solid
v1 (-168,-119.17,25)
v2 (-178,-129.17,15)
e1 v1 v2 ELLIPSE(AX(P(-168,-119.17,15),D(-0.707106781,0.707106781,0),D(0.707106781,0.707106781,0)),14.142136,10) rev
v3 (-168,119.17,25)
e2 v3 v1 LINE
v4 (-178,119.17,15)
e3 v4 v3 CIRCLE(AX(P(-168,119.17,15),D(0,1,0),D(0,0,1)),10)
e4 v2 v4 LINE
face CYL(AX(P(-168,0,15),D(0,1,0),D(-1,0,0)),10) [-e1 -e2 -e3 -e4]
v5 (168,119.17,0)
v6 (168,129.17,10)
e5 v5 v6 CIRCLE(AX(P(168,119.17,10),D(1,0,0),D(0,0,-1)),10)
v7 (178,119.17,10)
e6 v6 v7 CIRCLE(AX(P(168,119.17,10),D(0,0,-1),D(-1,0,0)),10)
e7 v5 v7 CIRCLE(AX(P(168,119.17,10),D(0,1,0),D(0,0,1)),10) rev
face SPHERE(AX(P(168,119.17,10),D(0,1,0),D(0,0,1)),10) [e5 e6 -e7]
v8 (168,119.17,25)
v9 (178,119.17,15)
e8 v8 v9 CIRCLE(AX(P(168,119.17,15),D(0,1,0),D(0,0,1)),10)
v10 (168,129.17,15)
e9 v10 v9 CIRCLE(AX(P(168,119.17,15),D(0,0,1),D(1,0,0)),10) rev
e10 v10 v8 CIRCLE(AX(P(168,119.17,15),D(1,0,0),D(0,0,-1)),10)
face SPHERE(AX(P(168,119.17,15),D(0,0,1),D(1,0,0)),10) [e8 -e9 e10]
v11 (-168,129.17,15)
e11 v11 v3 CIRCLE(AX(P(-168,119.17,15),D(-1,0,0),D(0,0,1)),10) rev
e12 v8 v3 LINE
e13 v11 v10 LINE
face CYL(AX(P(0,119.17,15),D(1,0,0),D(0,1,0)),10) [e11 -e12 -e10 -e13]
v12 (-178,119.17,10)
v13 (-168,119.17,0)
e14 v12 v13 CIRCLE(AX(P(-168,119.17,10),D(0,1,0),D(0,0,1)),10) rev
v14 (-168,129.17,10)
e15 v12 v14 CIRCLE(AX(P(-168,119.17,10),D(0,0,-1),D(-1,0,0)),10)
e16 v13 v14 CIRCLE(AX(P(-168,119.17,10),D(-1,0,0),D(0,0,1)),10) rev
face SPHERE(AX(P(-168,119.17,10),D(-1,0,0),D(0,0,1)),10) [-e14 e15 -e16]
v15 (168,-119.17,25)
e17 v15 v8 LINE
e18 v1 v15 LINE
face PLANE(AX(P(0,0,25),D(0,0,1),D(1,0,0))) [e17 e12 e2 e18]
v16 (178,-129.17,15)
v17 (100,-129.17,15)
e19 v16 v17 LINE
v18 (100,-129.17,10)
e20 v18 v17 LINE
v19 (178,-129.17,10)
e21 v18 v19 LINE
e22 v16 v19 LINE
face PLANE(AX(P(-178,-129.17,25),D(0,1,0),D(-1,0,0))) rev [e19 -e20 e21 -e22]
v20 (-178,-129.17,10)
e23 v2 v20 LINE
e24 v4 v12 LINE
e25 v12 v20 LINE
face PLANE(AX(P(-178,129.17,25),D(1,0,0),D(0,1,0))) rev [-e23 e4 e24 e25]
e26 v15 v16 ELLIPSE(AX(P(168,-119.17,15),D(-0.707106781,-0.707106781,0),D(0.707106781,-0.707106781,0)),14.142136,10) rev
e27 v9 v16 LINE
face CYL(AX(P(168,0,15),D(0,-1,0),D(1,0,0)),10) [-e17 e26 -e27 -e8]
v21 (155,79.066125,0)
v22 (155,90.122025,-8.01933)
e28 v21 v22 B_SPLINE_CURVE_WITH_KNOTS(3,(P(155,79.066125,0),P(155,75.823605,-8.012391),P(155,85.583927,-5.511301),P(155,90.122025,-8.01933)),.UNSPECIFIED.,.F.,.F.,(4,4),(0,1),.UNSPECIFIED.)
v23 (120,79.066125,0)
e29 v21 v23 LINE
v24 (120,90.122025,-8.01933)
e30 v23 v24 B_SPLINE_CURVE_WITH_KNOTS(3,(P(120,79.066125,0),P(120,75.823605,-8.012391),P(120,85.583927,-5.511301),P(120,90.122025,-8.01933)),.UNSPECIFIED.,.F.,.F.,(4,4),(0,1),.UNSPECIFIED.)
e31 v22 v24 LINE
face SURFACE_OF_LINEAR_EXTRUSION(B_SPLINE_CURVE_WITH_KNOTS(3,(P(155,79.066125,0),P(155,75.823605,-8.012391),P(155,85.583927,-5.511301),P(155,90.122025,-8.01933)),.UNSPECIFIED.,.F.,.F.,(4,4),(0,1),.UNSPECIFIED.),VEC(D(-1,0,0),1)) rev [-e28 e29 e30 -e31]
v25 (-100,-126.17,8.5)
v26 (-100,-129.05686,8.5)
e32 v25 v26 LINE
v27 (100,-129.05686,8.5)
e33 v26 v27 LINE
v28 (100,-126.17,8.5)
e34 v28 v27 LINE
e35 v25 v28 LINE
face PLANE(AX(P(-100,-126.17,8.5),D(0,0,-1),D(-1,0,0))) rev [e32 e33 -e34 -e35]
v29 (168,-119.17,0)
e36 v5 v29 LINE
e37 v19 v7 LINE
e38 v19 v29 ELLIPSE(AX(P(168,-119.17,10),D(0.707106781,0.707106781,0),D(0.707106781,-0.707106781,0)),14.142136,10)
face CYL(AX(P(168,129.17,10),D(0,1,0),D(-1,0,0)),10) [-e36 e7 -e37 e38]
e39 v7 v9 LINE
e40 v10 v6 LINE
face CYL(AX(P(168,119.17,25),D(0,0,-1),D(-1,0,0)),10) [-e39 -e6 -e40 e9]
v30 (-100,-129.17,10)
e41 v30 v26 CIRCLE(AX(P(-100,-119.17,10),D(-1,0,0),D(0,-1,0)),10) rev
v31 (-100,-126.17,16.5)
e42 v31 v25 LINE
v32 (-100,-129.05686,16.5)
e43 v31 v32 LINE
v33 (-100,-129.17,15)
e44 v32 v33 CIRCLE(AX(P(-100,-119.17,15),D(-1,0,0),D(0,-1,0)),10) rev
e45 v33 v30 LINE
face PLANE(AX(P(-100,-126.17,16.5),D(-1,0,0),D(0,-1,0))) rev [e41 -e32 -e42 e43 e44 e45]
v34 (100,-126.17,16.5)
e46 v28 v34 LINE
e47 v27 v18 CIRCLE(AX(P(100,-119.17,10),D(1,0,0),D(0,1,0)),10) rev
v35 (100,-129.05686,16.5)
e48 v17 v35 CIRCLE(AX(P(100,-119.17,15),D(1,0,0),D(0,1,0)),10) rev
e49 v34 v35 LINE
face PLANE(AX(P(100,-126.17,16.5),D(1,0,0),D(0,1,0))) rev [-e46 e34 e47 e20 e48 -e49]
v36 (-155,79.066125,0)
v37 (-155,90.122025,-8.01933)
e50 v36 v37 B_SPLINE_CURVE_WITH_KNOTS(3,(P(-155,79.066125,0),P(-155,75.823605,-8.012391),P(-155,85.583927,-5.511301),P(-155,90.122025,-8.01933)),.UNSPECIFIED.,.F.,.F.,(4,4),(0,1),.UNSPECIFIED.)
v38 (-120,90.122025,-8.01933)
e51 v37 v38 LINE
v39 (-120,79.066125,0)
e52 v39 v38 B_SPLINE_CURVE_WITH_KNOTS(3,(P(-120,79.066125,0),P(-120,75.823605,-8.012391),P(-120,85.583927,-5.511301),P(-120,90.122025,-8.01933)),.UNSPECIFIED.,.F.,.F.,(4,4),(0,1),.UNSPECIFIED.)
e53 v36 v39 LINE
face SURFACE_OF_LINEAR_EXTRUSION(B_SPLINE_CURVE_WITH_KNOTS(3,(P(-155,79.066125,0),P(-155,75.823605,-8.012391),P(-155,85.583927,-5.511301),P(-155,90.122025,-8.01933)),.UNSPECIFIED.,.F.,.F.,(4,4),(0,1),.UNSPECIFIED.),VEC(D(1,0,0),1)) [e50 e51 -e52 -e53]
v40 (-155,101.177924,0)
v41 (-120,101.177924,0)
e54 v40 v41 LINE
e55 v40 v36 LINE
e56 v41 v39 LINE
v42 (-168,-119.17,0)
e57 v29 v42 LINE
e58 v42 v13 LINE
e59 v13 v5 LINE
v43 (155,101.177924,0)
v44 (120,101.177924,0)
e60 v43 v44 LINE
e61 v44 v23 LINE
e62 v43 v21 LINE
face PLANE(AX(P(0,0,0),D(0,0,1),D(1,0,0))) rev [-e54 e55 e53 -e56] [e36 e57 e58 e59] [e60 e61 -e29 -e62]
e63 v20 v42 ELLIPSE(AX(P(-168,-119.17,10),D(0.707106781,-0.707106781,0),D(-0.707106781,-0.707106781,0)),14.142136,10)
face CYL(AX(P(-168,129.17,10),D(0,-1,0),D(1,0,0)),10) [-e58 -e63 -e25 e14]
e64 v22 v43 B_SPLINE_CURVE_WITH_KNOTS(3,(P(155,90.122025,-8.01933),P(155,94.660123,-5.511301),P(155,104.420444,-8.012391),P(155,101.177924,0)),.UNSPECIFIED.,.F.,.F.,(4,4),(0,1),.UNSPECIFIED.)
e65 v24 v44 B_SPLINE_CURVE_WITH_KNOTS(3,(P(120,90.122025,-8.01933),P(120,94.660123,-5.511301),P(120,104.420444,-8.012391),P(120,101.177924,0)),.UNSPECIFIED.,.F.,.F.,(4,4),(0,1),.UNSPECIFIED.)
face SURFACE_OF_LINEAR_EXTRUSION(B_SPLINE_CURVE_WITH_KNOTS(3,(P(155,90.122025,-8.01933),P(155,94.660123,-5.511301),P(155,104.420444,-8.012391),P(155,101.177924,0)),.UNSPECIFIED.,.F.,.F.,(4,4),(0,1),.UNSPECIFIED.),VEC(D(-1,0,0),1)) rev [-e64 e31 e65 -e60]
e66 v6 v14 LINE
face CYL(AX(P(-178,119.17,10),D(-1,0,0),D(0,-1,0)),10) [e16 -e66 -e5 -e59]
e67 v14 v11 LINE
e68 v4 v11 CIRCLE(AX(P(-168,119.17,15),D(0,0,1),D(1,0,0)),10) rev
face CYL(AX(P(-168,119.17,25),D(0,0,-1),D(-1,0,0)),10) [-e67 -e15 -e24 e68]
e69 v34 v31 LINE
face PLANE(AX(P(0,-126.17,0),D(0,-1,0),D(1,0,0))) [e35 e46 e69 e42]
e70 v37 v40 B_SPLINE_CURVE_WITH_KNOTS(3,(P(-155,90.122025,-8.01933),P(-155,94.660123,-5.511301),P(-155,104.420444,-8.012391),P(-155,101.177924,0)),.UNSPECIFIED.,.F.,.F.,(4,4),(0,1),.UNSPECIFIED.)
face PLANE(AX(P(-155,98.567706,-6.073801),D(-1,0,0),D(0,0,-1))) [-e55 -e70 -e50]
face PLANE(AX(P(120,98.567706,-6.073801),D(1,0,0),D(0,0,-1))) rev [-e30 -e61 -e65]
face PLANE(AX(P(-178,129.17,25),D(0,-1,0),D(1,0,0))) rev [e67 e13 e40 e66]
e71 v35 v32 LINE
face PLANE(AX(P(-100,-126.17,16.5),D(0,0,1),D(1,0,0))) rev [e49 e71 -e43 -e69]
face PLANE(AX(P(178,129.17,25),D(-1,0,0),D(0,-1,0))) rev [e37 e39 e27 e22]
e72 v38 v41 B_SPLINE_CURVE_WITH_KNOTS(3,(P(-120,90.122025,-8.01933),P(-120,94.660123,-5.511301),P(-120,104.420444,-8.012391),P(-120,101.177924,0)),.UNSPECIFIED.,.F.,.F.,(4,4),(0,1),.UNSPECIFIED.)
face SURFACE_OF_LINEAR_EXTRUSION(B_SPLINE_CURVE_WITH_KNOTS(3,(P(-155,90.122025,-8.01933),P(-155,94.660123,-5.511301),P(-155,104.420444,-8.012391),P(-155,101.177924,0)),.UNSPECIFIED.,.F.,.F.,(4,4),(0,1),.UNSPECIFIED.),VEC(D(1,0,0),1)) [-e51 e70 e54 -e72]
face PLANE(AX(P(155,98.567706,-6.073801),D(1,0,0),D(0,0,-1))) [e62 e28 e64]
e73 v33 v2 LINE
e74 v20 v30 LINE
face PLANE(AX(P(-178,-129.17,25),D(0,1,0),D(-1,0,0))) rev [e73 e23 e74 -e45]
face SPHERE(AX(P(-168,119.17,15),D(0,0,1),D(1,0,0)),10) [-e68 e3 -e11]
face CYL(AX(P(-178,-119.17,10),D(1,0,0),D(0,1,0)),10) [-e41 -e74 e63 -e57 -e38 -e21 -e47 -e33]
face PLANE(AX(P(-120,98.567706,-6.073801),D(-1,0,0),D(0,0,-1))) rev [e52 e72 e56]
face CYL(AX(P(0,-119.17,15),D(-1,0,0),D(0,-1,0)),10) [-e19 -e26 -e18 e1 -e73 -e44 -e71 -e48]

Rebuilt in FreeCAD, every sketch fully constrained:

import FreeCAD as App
import Part
import Sketcher

V = App.Vector


def edges_at(feature, points):
    """Names of the edges that pass closest to the given points."""
    edges = feature.Shape.Edges
    near = lambda p: min(range(len(edges)), key=lambda i: edges[i].distToShape(Part.Vertex(*p))[0])
    return sorted({f"Edge{near(p) + 1}" for p in points})

doc = App.newDocument("Part")
body = doc.addObject("PartDesign::Body", "Body")

# Sketch on XY plane
sketch1 = body.newObject("Sketcher::SketchObject", "Sketch")
sketch1.AttachmentSupport = (doc.getObject("XY_Plane"), [""])
sketch1.MapMode = "FlatFace"
sketch1.addGeometry(Part.LineSegment(V(-178, 129.17, 0), V(-178, -129.17, 0)), False)
sketch1.addGeometry(Part.LineSegment(V(-178, -129.17, 0), V(178, -129.17, 0)), False)
sketch1.addGeometry(Part.LineSegment(V(178, -129.17, 0), V(178, 129.17, 0)), False)
sketch1.addGeometry(Part.LineSegment(V(178, 129.17, 0), V(-178, 129.17, 0)), False)
sketch1.addConstraint(Sketcher.Constraint("Coincident", 0, 2, 1, 1))
sketch1.addConstraint(Sketcher.Constraint("Coincident", 1, 2, 2, 1))
sketch1.addConstraint(Sketcher.Constraint("Coincident", 2, 2, 3, 1))
sketch1.addConstraint(Sketcher.Constraint("Coincident", 3, 2, 0, 1))
sketch1.addConstraint(Sketcher.Constraint("Vertical", 0))
sketch1.addConstraint(Sketcher.Constraint("Horizontal", 1))
sketch1.addConstraint(Sketcher.Constraint("Vertical", 2))
sketch1.addConstraint(Sketcher.Constraint("Horizontal", 3))
sketch1.addConstraint(Sketcher.Constraint("Symmetric", 0, 2, 2, 2, -1, 1))
sketch1.addConstraint(Sketcher.Constraint("DistanceX", 1, 1, 1, 2, 356.0))
sketch1.addConstraint(Sketcher.Constraint("DistanceY", 0, 2, 0, 1, 258.34))
pad1 = body.newObject("PartDesign::Pad", "Pad")
pad1.Profile = sketch1
pad1.Length = 25
doc.recompute()

fillet = body.newObject("PartDesign::Fillet", "Fillet")
fillet.Base = (pad1, edges_at(pad1, [
    (178, 0, 25),
    (0, 129.17, 25),
    (-178, 0, 25),
    (0, 129.17, 0),
    (178, 0, 0),
    (0, -129.17, 0),
    (-178, 0, 0),
    (-178, 129.17, 12.5),
    (178, 129.17, 12.5),
    (0, -129.17, 25),
]))
fillet.Radius = 10

# Sketch on YZ plane
sketch2 = body.newObject("Sketcher::SketchObject", "Sketch001")
sketch2.AttachmentSupport = (doc.getObject("YZ_Plane"), [""])
sketch2.MapMode = "FlatFace"
sketch2.AttachmentOffset = App.Placement(V(0, 0, 120), App.Rotation())
sketch2.addGeometry(Part.LineSegment(V(101.177924, 0, 0), V(79.066125, 0, 0)), False)
sketch2.addGeometry(Part.BSplineCurve([V(79.066125, 0, 0), V(75.823605, -8.012391, 0), V(85.583927, -5.511301, 0), V(90.122025, -8.01933, 0)], [4, 4], [0, 1], False, 3, [1, 1, 1, 1], False), False)
sketch2.addGeometry(Part.BSplineCurve([V(101.177924, 0, 0), V(104.420444, -8.012391, 0), V(94.660123, -5.511301, 0), V(90.122025, -8.01933, 0)], [4, 4], [0, 1], False, 3, [1, 1, 1, 1], False), False)
sketch2.addConstraint(Sketcher.Constraint("Block", 1))
sketch2.addConstraint(Sketcher.Constraint("Block", 2))
sketch2.addConstraint(Sketcher.Constraint("Coincident", 0, 2, 1, 1))
sketch2.addConstraint(Sketcher.Constraint("Coincident", 2, 1, 0, 1))
pad2 = body.newObject("PartDesign::Pad", "Pad001")
pad2.Profile = sketch2
pad2.Length = 35
doc.recompute()

mirrored = body.newObject("PartDesign::Mirrored", "Mirrored")
mirrored.Originals = [pad2]
mirrored.MirrorPlane = (doc.getObject("YZ_Plane"), [""])
body.Tip = mirrored

# Sketch on XZ plane
sketch3 = body.newObject("Sketcher::SketchObject", "Sketch002")
sketch3.AttachmentSupport = (doc.getObject("XZ_Plane"), [""])
sketch3.MapMode = "FlatFace"
sketch3.AttachmentOffset = App.Placement(V(0, 0, 129.17), App.Rotation())
sketch3.addGeometry(Part.LineSegment(V(-100, 16.5, 0), V(-100, 8.5, 0)), False)
sketch3.addGeometry(Part.LineSegment(V(-100, 8.5, 0), V(100, 8.5, 0)), False)
sketch3.addGeometry(Part.LineSegment(V(100, 8.5, 0), V(100, 16.5, 0)), False)
sketch3.addGeometry(Part.LineSegment(V(100, 16.5, 0), V(-100, 16.5, 0)), False)
sketch3.addConstraint(Sketcher.Constraint("Coincident", 0, 2, 1, 1))
sketch3.addConstraint(Sketcher.Constraint("Coincident", 1, 2, 2, 1))
sketch3.addConstraint(Sketcher.Constraint("Coincident", 2, 2, 3, 1))
sketch3.addConstraint(Sketcher.Constraint("Coincident", 3, 2, 0, 1))
sketch3.addConstraint(Sketcher.Constraint("Vertical", 0))
sketch3.addConstraint(Sketcher.Constraint("Horizontal", 1))
sketch3.addConstraint(Sketcher.Constraint("Vertical", 2))
sketch3.addConstraint(Sketcher.Constraint("Horizontal", 3))
sketch3.addConstraint(Sketcher.Constraint("DistanceX", 1, 1, 1, 2, 200.0))
sketch3.addConstraint(Sketcher.Constraint("DistanceY", 0, 2, 0, 1, 8.0))
sketch3.addConstraint(Sketcher.Constraint("DistanceX", 0, 2, -1, 1, 100.0))
sketch3.addConstraint(Sketcher.Constraint("DistanceY", -1, 1, 0, 2, 8.5))
pocket1 = body.newObject("PartDesign::Pocket", "Pocket")
pocket1.Profile = sketch3
pocket1.Length = 3

doc.recompute()
